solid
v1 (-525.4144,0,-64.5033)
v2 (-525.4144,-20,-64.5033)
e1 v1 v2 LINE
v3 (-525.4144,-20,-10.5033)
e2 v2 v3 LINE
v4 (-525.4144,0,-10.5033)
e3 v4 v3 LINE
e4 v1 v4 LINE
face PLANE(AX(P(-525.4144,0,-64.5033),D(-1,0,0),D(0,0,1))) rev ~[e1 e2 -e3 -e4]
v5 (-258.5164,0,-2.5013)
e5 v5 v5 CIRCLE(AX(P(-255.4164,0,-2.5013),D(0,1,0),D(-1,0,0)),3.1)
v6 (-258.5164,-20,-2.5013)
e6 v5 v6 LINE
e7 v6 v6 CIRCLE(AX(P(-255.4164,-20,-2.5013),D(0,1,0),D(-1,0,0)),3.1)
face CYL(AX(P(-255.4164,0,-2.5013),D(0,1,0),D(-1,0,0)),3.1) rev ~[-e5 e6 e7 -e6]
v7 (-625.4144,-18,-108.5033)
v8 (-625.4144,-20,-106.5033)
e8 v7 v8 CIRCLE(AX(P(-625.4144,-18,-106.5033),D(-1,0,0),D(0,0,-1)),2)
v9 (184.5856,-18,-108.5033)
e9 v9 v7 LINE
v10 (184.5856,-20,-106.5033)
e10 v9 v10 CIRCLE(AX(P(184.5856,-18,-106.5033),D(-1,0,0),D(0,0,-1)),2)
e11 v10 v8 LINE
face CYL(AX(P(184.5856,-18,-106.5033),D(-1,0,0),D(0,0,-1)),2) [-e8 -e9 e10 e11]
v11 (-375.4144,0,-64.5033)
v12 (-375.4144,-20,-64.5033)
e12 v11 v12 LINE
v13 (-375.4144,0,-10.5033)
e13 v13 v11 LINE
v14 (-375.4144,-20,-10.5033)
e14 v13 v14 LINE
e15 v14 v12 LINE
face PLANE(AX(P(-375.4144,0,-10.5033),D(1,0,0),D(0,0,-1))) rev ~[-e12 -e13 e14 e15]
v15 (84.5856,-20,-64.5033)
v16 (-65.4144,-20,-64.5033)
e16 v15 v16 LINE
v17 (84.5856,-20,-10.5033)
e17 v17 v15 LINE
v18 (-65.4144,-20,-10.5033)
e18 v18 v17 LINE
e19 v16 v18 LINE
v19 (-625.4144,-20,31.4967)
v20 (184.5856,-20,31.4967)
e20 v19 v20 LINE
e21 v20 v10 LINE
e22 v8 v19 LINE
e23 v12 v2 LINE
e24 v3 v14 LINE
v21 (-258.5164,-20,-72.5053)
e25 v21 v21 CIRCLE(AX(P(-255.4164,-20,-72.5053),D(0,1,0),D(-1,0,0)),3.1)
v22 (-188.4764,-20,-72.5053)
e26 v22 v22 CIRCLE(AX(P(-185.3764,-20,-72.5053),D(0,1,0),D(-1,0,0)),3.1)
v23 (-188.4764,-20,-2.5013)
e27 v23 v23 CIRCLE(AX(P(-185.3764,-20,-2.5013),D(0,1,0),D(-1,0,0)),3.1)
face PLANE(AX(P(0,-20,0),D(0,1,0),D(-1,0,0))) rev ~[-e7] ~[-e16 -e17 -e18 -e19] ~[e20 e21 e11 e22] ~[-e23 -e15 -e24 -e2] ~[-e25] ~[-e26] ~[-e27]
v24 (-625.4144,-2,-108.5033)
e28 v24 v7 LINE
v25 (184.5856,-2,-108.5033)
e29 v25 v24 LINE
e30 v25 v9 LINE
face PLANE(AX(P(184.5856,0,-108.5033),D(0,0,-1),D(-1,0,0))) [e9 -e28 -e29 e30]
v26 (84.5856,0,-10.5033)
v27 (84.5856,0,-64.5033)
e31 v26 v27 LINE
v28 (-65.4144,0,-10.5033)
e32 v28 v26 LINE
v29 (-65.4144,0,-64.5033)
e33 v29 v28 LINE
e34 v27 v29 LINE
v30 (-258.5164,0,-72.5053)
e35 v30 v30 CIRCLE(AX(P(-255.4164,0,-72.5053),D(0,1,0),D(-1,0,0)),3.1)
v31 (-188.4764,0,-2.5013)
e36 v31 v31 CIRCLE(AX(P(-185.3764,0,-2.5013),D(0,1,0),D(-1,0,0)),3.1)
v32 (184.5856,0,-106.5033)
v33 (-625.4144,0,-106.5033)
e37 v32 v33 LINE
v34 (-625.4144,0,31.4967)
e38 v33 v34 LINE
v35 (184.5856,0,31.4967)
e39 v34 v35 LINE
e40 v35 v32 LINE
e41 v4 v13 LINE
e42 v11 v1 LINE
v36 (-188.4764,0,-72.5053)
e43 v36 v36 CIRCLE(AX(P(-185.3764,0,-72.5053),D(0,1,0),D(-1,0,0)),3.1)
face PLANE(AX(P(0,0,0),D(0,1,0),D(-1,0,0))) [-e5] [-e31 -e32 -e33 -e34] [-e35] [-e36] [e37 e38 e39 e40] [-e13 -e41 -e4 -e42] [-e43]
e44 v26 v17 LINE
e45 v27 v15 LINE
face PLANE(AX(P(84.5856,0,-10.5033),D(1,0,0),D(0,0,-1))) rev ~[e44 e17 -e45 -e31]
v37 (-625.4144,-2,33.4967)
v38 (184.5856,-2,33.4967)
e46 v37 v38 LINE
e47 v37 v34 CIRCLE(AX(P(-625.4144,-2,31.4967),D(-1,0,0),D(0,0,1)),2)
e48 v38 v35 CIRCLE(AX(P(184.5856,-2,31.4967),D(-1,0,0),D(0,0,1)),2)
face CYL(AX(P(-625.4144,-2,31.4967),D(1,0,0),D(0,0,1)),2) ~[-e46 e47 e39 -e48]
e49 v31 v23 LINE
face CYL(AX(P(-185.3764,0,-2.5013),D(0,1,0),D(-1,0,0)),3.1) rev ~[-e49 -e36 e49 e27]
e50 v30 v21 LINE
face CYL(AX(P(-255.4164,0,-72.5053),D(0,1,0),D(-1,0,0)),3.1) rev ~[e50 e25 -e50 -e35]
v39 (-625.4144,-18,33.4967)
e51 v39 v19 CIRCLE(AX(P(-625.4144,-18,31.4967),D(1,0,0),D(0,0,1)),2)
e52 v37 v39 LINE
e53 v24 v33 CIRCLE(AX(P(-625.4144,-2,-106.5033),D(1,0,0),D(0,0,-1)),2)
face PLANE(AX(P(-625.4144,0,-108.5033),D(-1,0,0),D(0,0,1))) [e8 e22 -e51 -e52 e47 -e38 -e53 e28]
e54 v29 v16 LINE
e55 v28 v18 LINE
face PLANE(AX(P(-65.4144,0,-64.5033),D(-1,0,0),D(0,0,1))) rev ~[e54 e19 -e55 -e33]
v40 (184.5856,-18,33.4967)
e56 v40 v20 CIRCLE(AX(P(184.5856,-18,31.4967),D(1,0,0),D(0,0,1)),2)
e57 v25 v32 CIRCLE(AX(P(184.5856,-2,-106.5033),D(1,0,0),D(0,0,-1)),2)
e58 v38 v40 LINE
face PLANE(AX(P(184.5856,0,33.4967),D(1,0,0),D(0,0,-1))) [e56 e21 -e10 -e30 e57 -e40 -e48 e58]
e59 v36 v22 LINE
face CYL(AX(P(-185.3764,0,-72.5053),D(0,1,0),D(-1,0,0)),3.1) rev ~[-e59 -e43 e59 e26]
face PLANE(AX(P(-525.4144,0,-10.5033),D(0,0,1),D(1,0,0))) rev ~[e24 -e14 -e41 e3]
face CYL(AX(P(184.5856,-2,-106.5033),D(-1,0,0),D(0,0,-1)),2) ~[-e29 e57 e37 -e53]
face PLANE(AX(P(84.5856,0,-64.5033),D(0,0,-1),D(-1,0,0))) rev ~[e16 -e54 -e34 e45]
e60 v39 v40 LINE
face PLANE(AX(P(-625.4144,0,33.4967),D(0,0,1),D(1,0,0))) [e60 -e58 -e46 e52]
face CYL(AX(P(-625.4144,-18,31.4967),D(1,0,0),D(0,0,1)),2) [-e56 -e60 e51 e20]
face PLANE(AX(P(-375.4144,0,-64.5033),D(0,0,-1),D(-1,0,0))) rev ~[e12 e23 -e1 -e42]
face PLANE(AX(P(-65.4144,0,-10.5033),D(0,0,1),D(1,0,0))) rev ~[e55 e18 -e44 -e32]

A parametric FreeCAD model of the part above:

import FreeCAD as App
import Part
import Sketcher

V = App.Vector
Q = App.Units.Quantity


def edges_at(feature, points):
    """Names of the edges that pass closest to the given points."""
    edges = feature.Shape.Edges
    near = lambda p: min(range(len(edges)), key=lambda i: edges[i].distToShape(Part.Vertex(*p))[0])
    return sorted({f"Edge{near(p) + 1}" for p in points})


def add_polygon(sketch, points):
    """Adds a closed chain of lines whose ends are joined by coincident constraints."""
    first, n = sketch.GeometryCount, len(points)
    for a, b in zip(points, points[1:] + points[:1]):
        sketch.addGeometry(Part.LineSegment(App.Vector(*a, 0), App.Vector(*b, 0)), False)
    for i in range(n):
        sketch.addConstraint(Sketcher.Constraint("Coincident", first + i, 2, first + (i + 1) % n, 1))

doc = App.newDocument("Part")
body = doc.addObject("PartDesign::Body", "Body")

# Sketch on XZ plane
sketch1 = body.newObject("Sketcher::SketchObject", "Sketch")
sketch1.AttachmentSupport = (doc.getObject("XZ_Plane"), [""])
sketch1.MapMode = "FlatFace"
add_polygon(sketch1, [(-625.4, -108.5), (-625.4, 33.5), (184.6, 33.5), (184.6, -108.5)])  # lines 0-3
sketch1.addGeometry(Part.Circle(V(-185.4, -72.5, 0), V(0, 0, 1), 3.1), False)  # 4
sketch1.addGeometry(Part.Circle(V(-255.4, -72.5, 0), V(0, 0, 1), 3.1), False)  # 5
add_polygon(sketch1, [(84.6, -10.5), (-65.4, -10.5), (-65.4, -64.5), (84.6, -64.5)])  # lines 6-9
sketch1.addGeometry(Part.Circle(V(-185.4, -2.5, 0), V(0, 0, 1), 3.1), False)  # 10
sketch1.addGeometry(Part.Circle(V(-255.4, -2.5, 0), V(0, 0, 1), 3.1), False)  # 11
add_polygon(sketch1, [(-375.4, -10.5), (-525.4, -10.5), (-525.4, -64.5), (-375.4, -64.5)])  # lines 12-15
sketch1.addConstraint(Sketcher.Constraint("Vertical", 0))
sketch1.addConstraint(Sketcher.Constraint("Horizontal", 1))
sketch1.addConstraint(Sketcher.Constraint("Vertical", 2))
sketch1.addConstraint(Sketcher.Constraint("Horizontal", 3))
sketch1.addConstraint(Sketcher.Constraint("Horizontal", 6))
sketch1.addConstraint(Sketcher.Constraint("Vertical", 7))
sketch1.addConstraint(Sketcher.Constraint("Horizontal", 8))
sketch1.addConstraint(Sketcher.Constraint("Vertical", 9))
sketch1.addConstraint(Sketcher.Constraint("Horizontal", 12))
sketch1.addConstraint(Sketcher.Constraint("Vertical", 13))
sketch1.addConstraint(Sketcher.Constraint("Horizontal", 14))
sketch1.addConstraint(Sketcher.Constraint("Vertical", 15))
sketch1.addConstraint(Sketcher.Constraint("Equal", 4, 5))
sketch1.addConstraint(Sketcher.Constraint("Equal", 5, 10))
sketch1.addConstraint(Sketcher.Constraint("Equal", 10, 11))
sketch1.addConstraint(Sketcher.Constraint("Horizontal", 4, 3, 5, 3))
sketch1.addConstraint(Sketcher.Constraint("Horizontal", 10, 3, 11, 3))
sketch1.addConstraint(Sketcher.Constraint("Horizontal", 9, 2, 12, 2))
sketch1.addConstraint(Sketcher.Constraint("Horizontal", 8, 2, 13, 2))
sketch1.addConstraint(Sketcher.Constraint("Vertical", 4, 3, 10, 3))
sketch1.addConstraint(Sketcher.Constraint("Vertical", 5, 3, 11, 3))
sketch1.addConstraint(Sketcher.Constraint("Equal", 8, 12))
sketch1.addConstraint(Sketcher.Constraint("Diameter", 4, Q("6.2 mm")))
sketch1.addConstraint(Sketcher.Constraint("DistanceX", 1, 1, 1, 2, Q("810 mm")))
sketch1.addConstraint(Sketcher.Constraint("DistanceX", 6, 2, 6, 1, Q("150 mm")))
sketch1.addConstraint(Sketcher.Constraint("DistanceY", 0, 1, 0, 2, Q("142 mm")))
sketch1.addConstraint(Sketcher.Constraint("DistanceY", 7, 2, 7, 1, Q("54 mm")))
sketch1.addConstraint(Sketcher.Constraint("DistanceY", 6, 2, 1, 2, Q("44 mm")))
sketch1.addConstraint(Sketcher.Constraint("DistanceX", 8, 2, 2, 2, Q("100 mm")))
sketch1.addConstraint(Sketcher.Constraint("DistanceX", 0, 2, 12, 2, Q("100 mm")))
sketch1.addConstraint(Sketcher.Constraint("DistanceX", 5, 3, 4, 3, Q("70.04 mm")))
sketch1.addConstraint(Sketcher.Constraint("DistanceY", 4, 3, 10, 3, Q("70.004 mm")))
sketch1.addConstraint(Sketcher.Constraint("DistanceX", 0, 2, 11, 3, Q("369.998 mm")))
sketch1.addConstraint(Sketcher.Constraint("DistanceY", 11, 3, 0, 2, Q("35.998 mm")))
sketch1.addConstraint(Sketcher.Constraint("DistanceX", 4, 3, -1, 1, Q("185.3764 mm")))
sketch1.addConstraint(Sketcher.Constraint("DistanceY", 4, 3, -1, 1, Q("72.5053 mm")))
pad1 = body.newObject("PartDesign::Pad", "Pad")
pad1.Profile = sketch1
pad1.Length = 20
doc.recompute()

fillet = body.newObject("PartDesign::Fillet", "Fillet")
fillet.Base = (pad1, edges_at(pad1, [
    (-220.414, -20, 33.497),
    (-220.414, 0, 33.497),
    (-220.414, -20, -108.503),
    (-220.414, 0, -108.503),
]))
fillet.Radius = 2

doc.recompute()
